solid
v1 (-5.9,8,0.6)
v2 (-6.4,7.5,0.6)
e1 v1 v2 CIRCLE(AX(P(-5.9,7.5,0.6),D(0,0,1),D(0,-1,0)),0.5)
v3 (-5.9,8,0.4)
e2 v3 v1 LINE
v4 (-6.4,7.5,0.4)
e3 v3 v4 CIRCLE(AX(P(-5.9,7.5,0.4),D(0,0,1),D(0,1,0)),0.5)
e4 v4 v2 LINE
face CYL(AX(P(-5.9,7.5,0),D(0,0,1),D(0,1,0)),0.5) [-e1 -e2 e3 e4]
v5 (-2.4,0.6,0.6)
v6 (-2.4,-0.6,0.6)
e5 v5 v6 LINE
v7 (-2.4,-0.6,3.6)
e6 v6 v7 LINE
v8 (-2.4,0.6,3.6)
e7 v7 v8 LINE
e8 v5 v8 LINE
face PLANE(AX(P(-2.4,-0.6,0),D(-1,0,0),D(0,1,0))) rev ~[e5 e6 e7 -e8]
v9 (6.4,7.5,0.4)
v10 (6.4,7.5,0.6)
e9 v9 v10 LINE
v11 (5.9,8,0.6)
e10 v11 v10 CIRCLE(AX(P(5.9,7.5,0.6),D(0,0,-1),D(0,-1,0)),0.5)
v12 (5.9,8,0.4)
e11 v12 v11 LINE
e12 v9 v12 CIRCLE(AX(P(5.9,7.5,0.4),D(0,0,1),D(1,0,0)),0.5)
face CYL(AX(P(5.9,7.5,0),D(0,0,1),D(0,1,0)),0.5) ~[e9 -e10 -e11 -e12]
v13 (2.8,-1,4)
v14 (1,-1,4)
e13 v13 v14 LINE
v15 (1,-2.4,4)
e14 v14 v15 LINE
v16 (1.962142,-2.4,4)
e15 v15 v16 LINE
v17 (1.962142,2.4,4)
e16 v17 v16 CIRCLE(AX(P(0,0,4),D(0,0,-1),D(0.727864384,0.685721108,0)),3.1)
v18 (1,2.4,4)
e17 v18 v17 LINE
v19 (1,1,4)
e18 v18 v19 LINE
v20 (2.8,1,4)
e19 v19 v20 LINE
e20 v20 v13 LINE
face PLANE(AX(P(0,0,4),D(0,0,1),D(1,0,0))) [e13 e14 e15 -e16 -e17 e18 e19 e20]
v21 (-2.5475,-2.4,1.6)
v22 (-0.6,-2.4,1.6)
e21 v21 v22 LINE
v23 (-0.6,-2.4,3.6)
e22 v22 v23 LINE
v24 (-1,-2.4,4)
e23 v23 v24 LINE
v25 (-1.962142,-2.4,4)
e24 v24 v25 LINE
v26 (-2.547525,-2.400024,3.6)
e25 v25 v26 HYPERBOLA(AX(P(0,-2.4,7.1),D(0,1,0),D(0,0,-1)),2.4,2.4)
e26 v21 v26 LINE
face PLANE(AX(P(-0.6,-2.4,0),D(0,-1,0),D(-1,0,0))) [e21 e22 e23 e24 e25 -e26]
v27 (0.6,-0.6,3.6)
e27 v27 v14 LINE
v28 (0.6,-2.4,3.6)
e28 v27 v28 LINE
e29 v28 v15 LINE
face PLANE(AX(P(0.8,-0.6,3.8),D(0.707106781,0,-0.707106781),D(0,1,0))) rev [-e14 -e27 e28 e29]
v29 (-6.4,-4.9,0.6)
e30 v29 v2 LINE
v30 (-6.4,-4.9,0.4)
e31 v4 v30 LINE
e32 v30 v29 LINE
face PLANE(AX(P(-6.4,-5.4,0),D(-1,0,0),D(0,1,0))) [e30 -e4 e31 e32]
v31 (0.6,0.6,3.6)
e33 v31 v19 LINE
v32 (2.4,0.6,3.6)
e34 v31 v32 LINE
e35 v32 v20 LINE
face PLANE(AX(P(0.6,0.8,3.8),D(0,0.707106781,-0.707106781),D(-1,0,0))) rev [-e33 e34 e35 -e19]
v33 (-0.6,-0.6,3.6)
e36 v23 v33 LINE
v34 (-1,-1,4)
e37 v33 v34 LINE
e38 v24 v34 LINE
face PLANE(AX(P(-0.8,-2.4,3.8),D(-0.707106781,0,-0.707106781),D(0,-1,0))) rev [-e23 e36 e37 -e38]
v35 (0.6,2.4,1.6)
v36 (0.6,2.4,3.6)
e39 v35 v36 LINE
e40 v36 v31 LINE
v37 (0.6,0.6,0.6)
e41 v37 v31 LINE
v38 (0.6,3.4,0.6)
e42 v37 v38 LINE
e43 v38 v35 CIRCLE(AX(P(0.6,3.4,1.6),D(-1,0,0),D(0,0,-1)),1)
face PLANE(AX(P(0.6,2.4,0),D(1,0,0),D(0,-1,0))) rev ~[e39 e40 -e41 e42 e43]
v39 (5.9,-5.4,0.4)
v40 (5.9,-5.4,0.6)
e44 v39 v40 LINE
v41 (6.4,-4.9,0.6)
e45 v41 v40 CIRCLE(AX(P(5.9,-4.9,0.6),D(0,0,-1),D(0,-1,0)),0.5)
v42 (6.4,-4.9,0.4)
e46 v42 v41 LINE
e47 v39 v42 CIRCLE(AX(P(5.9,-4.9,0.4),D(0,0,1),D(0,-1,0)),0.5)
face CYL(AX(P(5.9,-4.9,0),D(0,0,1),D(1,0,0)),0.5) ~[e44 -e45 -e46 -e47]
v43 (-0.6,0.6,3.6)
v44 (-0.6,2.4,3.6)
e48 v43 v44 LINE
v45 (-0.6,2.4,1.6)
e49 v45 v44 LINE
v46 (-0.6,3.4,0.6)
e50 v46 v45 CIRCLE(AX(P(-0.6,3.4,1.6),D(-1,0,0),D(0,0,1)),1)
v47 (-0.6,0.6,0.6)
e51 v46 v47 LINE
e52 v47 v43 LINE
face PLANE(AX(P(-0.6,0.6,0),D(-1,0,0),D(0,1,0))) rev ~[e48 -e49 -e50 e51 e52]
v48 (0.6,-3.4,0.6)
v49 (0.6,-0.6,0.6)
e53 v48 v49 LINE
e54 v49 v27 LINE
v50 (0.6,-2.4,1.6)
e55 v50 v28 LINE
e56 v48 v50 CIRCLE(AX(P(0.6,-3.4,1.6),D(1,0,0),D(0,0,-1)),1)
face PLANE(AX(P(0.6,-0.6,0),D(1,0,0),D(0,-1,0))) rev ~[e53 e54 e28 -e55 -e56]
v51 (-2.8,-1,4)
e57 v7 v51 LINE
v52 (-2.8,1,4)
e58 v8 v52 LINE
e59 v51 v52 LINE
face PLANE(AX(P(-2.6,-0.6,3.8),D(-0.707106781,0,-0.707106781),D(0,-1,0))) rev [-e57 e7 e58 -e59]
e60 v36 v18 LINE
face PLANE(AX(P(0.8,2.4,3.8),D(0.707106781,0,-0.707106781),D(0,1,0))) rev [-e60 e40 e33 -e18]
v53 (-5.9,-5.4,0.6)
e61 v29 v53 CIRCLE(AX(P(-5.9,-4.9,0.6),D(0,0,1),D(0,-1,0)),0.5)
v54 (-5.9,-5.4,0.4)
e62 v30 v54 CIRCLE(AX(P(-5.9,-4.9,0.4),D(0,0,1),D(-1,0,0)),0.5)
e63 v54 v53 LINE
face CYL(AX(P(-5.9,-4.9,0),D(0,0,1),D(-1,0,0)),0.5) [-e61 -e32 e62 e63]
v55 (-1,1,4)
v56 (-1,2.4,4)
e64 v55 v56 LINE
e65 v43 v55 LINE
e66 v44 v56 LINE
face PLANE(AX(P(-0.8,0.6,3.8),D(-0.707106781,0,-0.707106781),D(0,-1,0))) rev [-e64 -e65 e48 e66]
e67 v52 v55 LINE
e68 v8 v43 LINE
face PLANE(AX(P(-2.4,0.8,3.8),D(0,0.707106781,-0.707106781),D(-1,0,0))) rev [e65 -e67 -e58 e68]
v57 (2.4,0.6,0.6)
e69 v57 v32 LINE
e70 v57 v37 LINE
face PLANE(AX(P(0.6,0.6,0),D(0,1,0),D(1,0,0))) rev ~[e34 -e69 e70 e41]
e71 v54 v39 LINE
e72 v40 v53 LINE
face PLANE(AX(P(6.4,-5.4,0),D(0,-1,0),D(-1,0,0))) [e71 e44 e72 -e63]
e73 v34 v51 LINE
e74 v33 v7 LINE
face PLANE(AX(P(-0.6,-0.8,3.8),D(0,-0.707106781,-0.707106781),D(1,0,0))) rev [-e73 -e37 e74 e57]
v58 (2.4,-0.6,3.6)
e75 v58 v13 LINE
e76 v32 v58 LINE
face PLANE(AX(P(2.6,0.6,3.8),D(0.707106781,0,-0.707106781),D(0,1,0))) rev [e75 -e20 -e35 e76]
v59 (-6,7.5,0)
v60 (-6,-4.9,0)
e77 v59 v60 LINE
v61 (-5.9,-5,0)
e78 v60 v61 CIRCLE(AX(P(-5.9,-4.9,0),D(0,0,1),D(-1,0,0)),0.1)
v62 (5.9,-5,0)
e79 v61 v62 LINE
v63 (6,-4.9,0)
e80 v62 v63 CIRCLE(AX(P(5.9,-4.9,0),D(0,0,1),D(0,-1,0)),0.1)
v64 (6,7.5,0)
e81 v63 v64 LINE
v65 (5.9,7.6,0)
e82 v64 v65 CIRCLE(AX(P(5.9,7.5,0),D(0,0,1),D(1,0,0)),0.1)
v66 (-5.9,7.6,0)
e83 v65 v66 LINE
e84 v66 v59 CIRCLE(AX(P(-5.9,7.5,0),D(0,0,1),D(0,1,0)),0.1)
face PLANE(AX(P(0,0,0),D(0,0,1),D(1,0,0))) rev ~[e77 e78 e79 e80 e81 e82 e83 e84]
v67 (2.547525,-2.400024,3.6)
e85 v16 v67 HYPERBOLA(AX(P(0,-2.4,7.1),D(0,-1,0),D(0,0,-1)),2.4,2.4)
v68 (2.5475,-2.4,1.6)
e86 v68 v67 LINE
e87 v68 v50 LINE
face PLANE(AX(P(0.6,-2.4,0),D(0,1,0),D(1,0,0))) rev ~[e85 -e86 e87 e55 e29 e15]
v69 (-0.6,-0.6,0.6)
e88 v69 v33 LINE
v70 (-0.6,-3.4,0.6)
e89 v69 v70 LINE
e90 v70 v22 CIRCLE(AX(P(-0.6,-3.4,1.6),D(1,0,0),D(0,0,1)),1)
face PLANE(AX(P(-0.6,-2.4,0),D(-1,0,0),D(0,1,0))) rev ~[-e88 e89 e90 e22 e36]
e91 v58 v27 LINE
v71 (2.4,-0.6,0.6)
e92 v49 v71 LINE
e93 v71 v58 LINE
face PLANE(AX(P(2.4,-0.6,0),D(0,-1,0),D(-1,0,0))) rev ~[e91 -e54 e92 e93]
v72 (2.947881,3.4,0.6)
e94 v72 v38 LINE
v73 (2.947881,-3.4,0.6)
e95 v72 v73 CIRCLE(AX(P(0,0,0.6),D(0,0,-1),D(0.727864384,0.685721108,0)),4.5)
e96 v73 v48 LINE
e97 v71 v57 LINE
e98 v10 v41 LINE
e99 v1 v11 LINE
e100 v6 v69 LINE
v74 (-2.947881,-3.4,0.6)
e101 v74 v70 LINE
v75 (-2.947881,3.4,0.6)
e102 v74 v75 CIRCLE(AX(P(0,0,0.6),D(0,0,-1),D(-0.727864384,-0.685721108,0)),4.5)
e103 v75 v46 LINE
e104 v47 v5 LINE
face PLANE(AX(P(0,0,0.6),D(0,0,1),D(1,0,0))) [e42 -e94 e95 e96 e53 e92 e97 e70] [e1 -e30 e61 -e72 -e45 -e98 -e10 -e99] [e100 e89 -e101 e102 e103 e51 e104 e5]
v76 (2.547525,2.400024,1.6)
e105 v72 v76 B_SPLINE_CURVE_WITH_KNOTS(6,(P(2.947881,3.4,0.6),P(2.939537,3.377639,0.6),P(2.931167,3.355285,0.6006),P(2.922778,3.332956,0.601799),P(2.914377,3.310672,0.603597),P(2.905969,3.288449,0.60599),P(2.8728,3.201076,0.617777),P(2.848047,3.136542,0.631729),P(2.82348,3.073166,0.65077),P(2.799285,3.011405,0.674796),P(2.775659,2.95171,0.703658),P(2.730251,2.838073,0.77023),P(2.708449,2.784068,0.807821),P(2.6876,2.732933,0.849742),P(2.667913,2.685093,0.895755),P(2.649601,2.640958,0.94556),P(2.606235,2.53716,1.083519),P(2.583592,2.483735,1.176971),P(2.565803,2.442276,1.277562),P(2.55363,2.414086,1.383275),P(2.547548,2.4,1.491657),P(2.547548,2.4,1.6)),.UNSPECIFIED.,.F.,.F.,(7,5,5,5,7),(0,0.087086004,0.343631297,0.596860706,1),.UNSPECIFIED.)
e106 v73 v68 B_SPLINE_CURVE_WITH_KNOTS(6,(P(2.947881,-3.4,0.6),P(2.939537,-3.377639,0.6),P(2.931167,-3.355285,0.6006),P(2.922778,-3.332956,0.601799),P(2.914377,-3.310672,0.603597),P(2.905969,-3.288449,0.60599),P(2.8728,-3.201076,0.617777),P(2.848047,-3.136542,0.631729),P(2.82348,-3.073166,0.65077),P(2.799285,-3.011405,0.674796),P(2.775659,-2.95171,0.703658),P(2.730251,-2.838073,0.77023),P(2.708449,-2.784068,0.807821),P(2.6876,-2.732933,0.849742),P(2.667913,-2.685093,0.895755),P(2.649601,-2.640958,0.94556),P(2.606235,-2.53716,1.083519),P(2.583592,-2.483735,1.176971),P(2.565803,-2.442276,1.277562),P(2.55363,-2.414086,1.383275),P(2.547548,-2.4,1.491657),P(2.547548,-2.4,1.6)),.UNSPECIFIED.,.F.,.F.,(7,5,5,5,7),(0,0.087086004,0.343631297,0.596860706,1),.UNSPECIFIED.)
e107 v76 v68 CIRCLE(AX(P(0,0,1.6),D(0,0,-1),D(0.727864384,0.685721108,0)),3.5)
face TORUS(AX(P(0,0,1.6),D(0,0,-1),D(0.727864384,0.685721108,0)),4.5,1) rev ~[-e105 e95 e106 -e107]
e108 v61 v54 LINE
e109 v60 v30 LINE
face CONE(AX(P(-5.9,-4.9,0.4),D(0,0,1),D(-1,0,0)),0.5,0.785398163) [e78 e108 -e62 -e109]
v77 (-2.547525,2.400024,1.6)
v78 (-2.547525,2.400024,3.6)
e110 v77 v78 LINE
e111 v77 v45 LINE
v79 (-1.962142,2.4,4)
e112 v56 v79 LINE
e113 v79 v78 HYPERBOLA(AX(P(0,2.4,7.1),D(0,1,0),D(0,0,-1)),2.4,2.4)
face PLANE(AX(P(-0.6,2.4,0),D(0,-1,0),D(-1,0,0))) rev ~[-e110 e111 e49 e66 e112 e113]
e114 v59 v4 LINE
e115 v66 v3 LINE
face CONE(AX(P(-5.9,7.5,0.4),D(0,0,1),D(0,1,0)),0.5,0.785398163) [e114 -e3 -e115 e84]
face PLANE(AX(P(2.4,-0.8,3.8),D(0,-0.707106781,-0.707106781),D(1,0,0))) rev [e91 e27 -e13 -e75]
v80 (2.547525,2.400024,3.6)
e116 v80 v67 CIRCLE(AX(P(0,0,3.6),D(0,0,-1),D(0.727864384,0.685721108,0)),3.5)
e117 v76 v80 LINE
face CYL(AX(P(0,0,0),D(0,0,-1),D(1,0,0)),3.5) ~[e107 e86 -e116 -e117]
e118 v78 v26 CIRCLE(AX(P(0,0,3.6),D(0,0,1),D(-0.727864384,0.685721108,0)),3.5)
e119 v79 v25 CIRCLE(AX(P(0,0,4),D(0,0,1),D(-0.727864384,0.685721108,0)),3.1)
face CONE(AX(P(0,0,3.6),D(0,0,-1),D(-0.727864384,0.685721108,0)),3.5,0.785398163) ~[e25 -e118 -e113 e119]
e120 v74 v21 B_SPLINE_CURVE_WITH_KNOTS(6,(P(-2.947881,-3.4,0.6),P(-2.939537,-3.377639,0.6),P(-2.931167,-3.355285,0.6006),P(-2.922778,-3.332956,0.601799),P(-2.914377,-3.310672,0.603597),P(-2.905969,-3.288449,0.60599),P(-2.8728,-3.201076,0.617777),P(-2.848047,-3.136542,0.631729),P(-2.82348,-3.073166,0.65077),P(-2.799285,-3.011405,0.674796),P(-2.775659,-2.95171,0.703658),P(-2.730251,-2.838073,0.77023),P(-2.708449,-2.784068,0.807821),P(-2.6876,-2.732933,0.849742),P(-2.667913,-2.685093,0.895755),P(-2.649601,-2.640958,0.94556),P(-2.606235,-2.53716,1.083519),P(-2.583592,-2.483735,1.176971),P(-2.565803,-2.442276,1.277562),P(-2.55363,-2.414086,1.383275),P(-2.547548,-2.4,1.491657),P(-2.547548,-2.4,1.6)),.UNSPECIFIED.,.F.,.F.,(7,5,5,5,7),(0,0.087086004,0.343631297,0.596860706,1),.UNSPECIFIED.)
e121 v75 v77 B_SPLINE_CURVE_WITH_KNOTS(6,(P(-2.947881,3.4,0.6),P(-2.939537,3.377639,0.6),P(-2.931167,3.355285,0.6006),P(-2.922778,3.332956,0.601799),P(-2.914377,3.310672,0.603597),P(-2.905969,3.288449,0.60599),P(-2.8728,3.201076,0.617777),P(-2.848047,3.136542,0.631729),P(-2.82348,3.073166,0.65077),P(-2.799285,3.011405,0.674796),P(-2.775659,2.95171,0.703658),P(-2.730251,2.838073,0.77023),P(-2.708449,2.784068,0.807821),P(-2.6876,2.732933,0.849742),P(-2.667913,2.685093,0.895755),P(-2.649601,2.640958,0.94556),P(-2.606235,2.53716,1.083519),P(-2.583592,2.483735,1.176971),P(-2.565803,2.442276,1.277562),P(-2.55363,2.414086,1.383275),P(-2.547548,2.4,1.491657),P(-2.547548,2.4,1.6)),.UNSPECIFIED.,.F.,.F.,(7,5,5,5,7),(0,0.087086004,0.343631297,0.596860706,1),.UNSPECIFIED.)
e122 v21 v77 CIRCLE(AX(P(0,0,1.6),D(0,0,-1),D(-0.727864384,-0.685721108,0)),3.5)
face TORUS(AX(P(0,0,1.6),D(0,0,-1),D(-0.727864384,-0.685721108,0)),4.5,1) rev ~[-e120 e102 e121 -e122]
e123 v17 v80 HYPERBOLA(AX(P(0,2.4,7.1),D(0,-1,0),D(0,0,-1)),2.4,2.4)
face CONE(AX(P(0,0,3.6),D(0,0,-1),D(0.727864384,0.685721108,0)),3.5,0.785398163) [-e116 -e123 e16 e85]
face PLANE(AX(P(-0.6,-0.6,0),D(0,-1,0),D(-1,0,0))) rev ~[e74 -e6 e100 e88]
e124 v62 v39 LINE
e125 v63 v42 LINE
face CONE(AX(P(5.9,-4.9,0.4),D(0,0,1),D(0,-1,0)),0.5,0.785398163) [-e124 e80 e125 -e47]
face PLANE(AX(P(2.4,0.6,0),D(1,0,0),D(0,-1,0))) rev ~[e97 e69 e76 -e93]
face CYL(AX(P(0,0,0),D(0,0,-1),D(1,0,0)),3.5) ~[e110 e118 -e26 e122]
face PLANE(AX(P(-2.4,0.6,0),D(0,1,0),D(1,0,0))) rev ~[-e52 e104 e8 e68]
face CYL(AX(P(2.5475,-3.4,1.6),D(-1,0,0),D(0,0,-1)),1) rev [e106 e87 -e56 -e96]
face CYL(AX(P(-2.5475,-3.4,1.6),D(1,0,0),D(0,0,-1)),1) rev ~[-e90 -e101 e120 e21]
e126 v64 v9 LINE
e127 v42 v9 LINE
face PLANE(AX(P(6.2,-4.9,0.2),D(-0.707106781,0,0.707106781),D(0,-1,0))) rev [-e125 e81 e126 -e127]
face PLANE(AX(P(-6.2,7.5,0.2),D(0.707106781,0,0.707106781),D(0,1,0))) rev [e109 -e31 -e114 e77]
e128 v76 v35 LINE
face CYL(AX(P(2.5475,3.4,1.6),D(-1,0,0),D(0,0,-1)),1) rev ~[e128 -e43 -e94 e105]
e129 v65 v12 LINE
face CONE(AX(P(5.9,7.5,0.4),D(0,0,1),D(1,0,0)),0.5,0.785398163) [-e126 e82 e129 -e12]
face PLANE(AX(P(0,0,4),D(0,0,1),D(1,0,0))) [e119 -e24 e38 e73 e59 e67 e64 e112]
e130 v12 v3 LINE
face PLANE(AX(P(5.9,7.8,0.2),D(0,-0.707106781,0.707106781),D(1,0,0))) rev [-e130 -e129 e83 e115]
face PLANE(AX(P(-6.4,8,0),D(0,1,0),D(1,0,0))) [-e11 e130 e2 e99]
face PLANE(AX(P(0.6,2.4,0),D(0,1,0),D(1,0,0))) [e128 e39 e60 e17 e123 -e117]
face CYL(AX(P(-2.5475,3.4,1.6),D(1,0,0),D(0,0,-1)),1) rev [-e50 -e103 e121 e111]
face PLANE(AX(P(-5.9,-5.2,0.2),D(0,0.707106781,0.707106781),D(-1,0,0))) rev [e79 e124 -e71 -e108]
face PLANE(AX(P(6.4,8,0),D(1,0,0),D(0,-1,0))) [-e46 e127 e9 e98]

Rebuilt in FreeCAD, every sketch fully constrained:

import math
import FreeCAD as App
import Part
import Sketcher


def edges_at(feature, points):
    """Names of the edges that pass closest to the given points."""
    edges = feature.Shape.Edges
    near = lambda p: min(range(len(edges)), key=lambda i: edges[i].distToShape(Part.Vertex(*p))[0])
    return sorted({f"Edge{near(p) + 1}" for p in points})

doc = App.newDocument("Part")
body = doc.addObject("PartDesign::Body", "Body")

# Sketch on XY plane
sketch1 = body.newObject("Sketcher::SketchObject", "Sketch")
sketch1.AttachmentSupport = (doc.getObject("XY_Plane"), [""])
sketch1.MapMode = "FlatFace"
sketch1.addGeometry([
    Part.LineSegment(App.Vector(6, 8, 0), App.Vector(-6, 8, 0)),
    Part.LineSegment(App.Vector(-6, 8, 0), App.Vector(-6, -5, 0)),
    Part.LineSegment(App.Vector(-6, -5, 0), App.Vector(6, -5, 0)),
    Part.LineSegment(App.Vector(6, -5, 0), App.Vector(6, 8, 0)),
], False)
sketch1.addConstraint([
    Sketcher.Constraint("Coincident", 0, 2, 1, 1),
    Sketcher.Constraint("Coincident", 1, 2, 2, 1),
    Sketcher.Constraint("Coincident", 2, 2, 3, 1),
    Sketcher.Constraint("Coincident", 3, 2, 0, 1),
    Sketcher.Constraint("Horizontal", 0),
    Sketcher.Constraint("Vertical", 1),
    Sketcher.Constraint("Horizontal", 2),
    Sketcher.Constraint("Vertical", 3),
    Sketcher.Constraint("DistanceX", 0, 2, 0, 1, 12.8),
    Sketcher.Constraint("DistanceY", 1, 2, 1, 1, 13.4),
    Sketcher.Constraint("DistanceY", -1, 1, 0, 2, 8.0),
    Sketcher.Constraint("DistanceX", 0, 2, -1, 1, 6.4),
])
pad1 = body.newObject("PartDesign::Pad", "Pad")
pad1.Profile = sketch1
pad1.Length = 0.6

# Sketch on XY plane
sketch2 = body.newObject("Sketcher::SketchObject", "Sketch001")
sketch2.AttachmentSupport = (doc.getObject("XY_Plane"), [""])
sketch2.MapMode = "FlatFace"
sketch2.addGeometry([
    Part.ArcOfCircle(Part.Circle(App.Vector(0, 0, 0), App.Vector(0, 0, 1), 3.5), math.radians(-43), math.radians(43)),  # 0
    Part.LineSegment(App.Vector(2.5, 2.4, 0), App.Vector(0.6, 2.4, 0)),  # 1
    Part.LineSegment(App.Vector(0.6, 2.4, 0), App.Vector(0.6, 0.6, 0)),  # 2
    Part.LineSegment(App.Vector(0.6, 0.6, 0), App.Vector(2.4, 0.6, 0)),  # 3
    Part.LineSegment(App.Vector(2.4, 0.6, 0), App.Vector(2.4, -0.6, 0)),  # 4
    Part.LineSegment(App.Vector(2.4, -0.6, 0), App.Vector(0.6, -0.6, 0)),  # 5
    Part.LineSegment(App.Vector(0.6, -0.6, 0), App.Vector(0.6, -2.4, 0)),  # 6
    Part.LineSegment(App.Vector(0.6, -2.4, 0), App.Vector(2.5, -2.4, 0)),  # 7
    Part.LineSegment(App.Vector(-0.6, 2.4, 0), App.Vector(-2.5, 2.4, 0)),  # 8
    Part.ArcOfCircle(Part.Circle(App.Vector(0, 0, 0), App.Vector(0, 0, 1), 3.5), math.radians(137), math.radians(223)),  # 9
    Part.LineSegment(App.Vector(-2.5, -2.4, 0), App.Vector(-0.6, -2.4, 0)),  # 10
    Part.LineSegment(App.Vector(-0.6, -2.4, 0), App.Vector(-0.6, -0.6, 0)),  # 11
    Part.LineSegment(App.Vector(-0.6, -0.6, 0), App.Vector(-2.4, -0.6, 0)),  # 12
    Part.LineSegment(App.Vector(-2.4, -0.6, 0), App.Vector(-2.4, 0.6, 0)),  # 13
    Part.LineSegment(App.Vector(-2.4, 0.6, 0), App.Vector(-0.6, 0.6, 0)),  # 14
    Part.LineSegment(App.Vector(-0.6, 0.6, 0), App.Vector(-0.6, 2.4, 0)),  # 15
], False)
sketch2.addConstraint([
    Sketcher.Constraint("Coincident", 0, 2, 1, 1),
    Sketcher.Constraint("Coincident", 1, 2, 2, 1),
    Sketcher.Constraint("Coincident", 2, 2, 3, 1),
    Sketcher.Constraint("Coincident", 3, 2, 4, 1),
    Sketcher.Constraint("Coincident", 4, 2, 5, 1),
    Sketcher.Constraint("Coincident", 5, 2, 6, 1),
    Sketcher.Constraint("Coincident", 6, 2, 7, 1),
    Sketcher.Constraint("Coincident", 7, 2, 0, 1),
    Sketcher.Constraint("Coincident", 8, 2, 9, 1),
    Sketcher.Constraint("Coincident", 9, 2, 10, 1),
    Sketcher.Constraint("Coincident", 10, 2, 11, 1),
    Sketcher.Constraint("Coincident", 11, 2, 12, 1),
    Sketcher.Constraint("Coincident", 12, 2, 13, 1),
    Sketcher.Constraint("Coincident", 13, 2, 14, 1),
    Sketcher.Constraint("Coincident", 14, 2, 15, 1),
    Sketcher.Constraint("Coincident", 15, 2, 8, 1),
    Sketcher.Constraint("Horizontal", 1),
    Sketcher.Constraint("Vertical", 2),
    Sketcher.Constraint("Horizontal", 3),
    Sketcher.Constraint("Vertical", 4),
    Sketcher.Constraint("Horizontal", 5),
    Sketcher.Constraint("Vertical", 6),
    Sketcher.Constraint("Horizontal", 7),
    Sketcher.Constraint("Horizontal", 8),
    Sketcher.Constraint("Horizontal", 10),
    Sketcher.Constraint("Vertical", 11),
    Sketcher.Constraint("Horizontal", 12),
    Sketcher.Constraint("Vertical", 13),
    Sketcher.Constraint("Horizontal", 14),
    Sketcher.Constraint("Vertical", 15),
    Sketcher.Constraint("Coincident", 0, 3, -1, 1),
    Sketcher.Constraint("Coincident", 9, 3, -1, 1),
    Sketcher.Constraint("Equal", 0, 9),
    Sketcher.Constraint("Symmetric", 1, 2, 10, 2, -1, 1),
    Sketcher.Constraint("Symmetric", 3, 2, 12, 2, -1, 1),
    Sketcher.Constraint("Symmetric", 5, 2, 14, 2, -1, 1),
    Sketcher.Constraint("Symmetric", 6, 2, 10, 2, -2),
    Sketcher.Constraint("Horizontal", 1, 2, 8, 2),
    Sketcher.Constraint("Horizontal", 5, 2, 11, 2),
    Sketcher.Constraint("Equal", 14, 2),
    Sketcher.Constraint("Radius", 0, 3.5),
    Sketcher.Constraint("DistanceY", 4, 2, 4, 1, 1.2),
    Sketcher.Constraint("DistanceX", 10, 2, 6, 2, 1.2),
    Sketcher.Constraint("DistanceX", 3, 1, 3, 2, 1.8),
])
pad2 = body.newObject("PartDesign::Pad", "Pad001")
pad2.Profile = sketch2
pad2.Length = 4
doc.recompute()

fillet = body.newObject("PartDesign::Fillet", "Fillet")
fillet.Base = (pad2, edges_at(pad2, [
    (-1.574, -2.4, 0.6),
    (-3.5, 0, 0.6),
    (1.574, -2.4, 0.6),
    (3.5, 0, 0.6),
    (1.574, 2.4, 0.6),
    (-1.574, 2.4, 0.6),
]))
fillet.Radius = 1
doc.recompute()

fillet2 = body.newObject("PartDesign::Fillet", "Fillet001")
fillet2.Base = (fillet, edges_at(fillet, [
    (6.4, 8, 0.3),
    (-6.4, 8, 0.3),
    (6.4, -5.4, 0.3),
    (-6.4, -5.4, 0.3),
]))
fillet2.Radius = 0.5
doc.recompute()

chamfer = body.newObject("PartDesign::Chamfer", "Chamfer")
chamfer.Base = (fillet2, edges_at(fillet2, [
    (-6.254, 7.854, 0),
    (0, 8, 0),
    (6.254, 7.854, 0),
    (6.4, 1.3, 0),
    (6.254, -5.254, 0),
    (0, -5.4, 0),
    (-6.254, -5.254, 0),
    (-6.4, 1.3, 0),
    (-0.6, 1.5, 4),
    (-1.5, 0.6, 4),
    (-2.4, 0, 4),
    (-1.5, -0.6, 4),
    (-0.6, -1.5, 4),
    (0.6, -1.5, 4),
    (1.5, -0.6, 4),
    (2.4, 0, 4),
    (1.5, 0.6, 4),
    (0.6, 1.5, 4),
    (3.5, 0, 4),
    (-3.5, 0, 4),
]))
chamfer.Size = 0.4

doc.recompute()
